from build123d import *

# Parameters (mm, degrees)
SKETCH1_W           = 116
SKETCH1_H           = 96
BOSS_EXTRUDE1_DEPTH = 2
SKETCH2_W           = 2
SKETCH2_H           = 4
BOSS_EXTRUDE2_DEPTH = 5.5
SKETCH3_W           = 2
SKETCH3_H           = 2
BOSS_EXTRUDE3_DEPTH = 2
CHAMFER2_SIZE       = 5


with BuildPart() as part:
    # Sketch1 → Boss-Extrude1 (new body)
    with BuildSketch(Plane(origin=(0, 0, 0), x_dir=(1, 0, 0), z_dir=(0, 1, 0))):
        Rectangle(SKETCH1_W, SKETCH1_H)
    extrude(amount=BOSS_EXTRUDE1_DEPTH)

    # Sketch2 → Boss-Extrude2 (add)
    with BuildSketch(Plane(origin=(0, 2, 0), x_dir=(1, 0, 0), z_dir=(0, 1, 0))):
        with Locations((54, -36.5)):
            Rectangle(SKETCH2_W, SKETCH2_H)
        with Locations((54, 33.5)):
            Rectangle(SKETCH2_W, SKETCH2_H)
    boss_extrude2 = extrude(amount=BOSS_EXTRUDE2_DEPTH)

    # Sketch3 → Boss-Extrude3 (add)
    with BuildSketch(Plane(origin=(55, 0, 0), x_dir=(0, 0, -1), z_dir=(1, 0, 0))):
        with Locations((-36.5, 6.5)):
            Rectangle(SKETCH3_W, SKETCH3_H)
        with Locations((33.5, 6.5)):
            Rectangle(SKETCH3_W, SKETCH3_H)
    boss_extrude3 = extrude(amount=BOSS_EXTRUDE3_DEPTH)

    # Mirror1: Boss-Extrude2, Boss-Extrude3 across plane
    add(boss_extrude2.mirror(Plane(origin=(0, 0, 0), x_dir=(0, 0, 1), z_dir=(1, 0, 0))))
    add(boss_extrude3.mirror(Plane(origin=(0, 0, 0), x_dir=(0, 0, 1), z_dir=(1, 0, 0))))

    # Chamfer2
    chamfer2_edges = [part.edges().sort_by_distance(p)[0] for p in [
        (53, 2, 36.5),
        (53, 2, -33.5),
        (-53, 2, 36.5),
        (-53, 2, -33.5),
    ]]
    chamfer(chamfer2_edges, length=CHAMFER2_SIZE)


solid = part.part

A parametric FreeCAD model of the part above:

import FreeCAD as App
import Part
import Sketcher
Q = App.Units.Quantity


def edges_at(feature, points):
    """Names of the edges that pass closest to the given points."""
    edges = feature.Shape.Edges
    near = lambda p: min(range(len(edges)), key=lambda i: edges[i].distToShape(Part.Vertex(*p))[0])
    return sorted({f"Edge{near(p) + 1}" for p in points})

doc = App.newDocument("Part")
params = doc.addObject("Spreadsheet::Sheet", "Params")
for row, (alias, value) in enumerate([
    ("sketch1_width", "116 mm"),
    ("sketch1_height", "96 mm"),
    ("pad1_length", "2 mm"),
    ("sketch2_width", "2 mm"),
    ("sketch2_height", "4 mm"),
    ("pad2_length", "5.5 mm"),
    ("sketch3_width", "2 mm"),
    ("pad3_length", "2 mm"),
    ("chamfer_size", "5 mm"),
], start=1):
    params.set(f"A{row}", alias)
    params.set(f"B{row}", "=" + value)
    params.setAlias(f"B{row}", alias)

body = doc.addObject("PartDesign::Body", "Body")

# Sketch on XZ plane
sketch1 = doc.addObject("Sketcher::SketchObject", "Sketch")
body.addObject(sketch1)
sketch1.AttachmentSupport = (doc.XZ_Plane, [""])
sketch1.MapMode = "FlatFace"
sketch1.addGeometry(Part.LineSegment(App.Vector(-58, -48, 0), App.Vector(-58, 48, 0)), False)
sketch1.addGeometry(Part.LineSegment(App.Vector(-58, 48, 0), App.Vector(58, 48, 0)), False)
sketch1.addGeometry(Part.LineSegment(App.Vector(58, 48, 0), App.Vector(58, -48, 0)), False)
sketch1.addGeometry(Part.LineSegment(App.Vector(58, -48, 0), App.Vector(-58, -48, 0)), False)
sketch1.addConstraint(Sketcher.Constraint("Coincident", 0, 2, 1, 1))
sketch1.addConstraint(Sketcher.Constraint("Coincident", 1, 2, 2, 1))
sketch1.addConstraint(Sketcher.Constraint("Coincident", 2, 2, 3, 1))
sketch1.addConstraint(Sketcher.Constraint("Coincident", 3, 2, 0, 1))
sketch1.addConstraint(Sketcher.Constraint("Vertical", 0))
sketch1.addConstraint(Sketcher.Constraint("Horizontal", 1))
sketch1.addConstraint(Sketcher.Constraint("Vertical", 2))
sketch1.addConstraint(Sketcher.Constraint("Horizontal", 3))
sketch1.addConstraint(Sketcher.Constraint("Symmetric", 0, 2, 2, 2, -1, 1))
sketch1.addConstraint(Sketcher.Constraint("DistanceX", 1, 1, 1, 2, Q("116 mm")))
sketch1.addConstraint(Sketcher.Constraint("DistanceY", 0, 1, 0, 2, Q("96 mm")))
sketch1.setExpression("Constraints[9]", "Params.sketch1_width")
sketch1.setExpression("Constraints[10]", "Params.sketch1_height")
pad1 = doc.addObject("PartDesign::Pad", "Pad")
body.addObject(pad1)
pad1.Profile = sketch1
pad1.setExpression("Length", "Params.pad1_length")
pad1.Reversed = True

# Sketch on XZ plane
sketch2 = doc.addObject("Sketcher::SketchObject", "Sketch001")
body.addObject(sketch2)
sketch2.AttachmentSupport = (doc.XZ_Plane, [""])
sketch2.MapMode = "FlatFace"
sketch2.AttachmentOffset = App.Placement(App.Vector(0, 0, -2), App.Rotation())
sketch2.addGeometry(Part.LineSegment(App.Vector(53, 34.5, 0), App.Vector(53, 38.5, 0)), False)
sketch2.addGeometry(Part.LineSegment(App.Vector(53, 38.5, 0), App.Vector(55, 38.5, 0)), False)
sketch2.addGeometry(Part.LineSegment(App.Vector(55, 38.5, 0), App.Vector(55, 34.5, 0)), False)
sketch2.addGeometry(Part.LineSegment(App.Vector(55, 34.5, 0), App.Vector(53, 34.5, 0)), False)
sketch2.addGeometry(Part.LineSegment(App.Vector(53, -35.5, 0), App.Vector(53, -31.5, 0)), False)
sketch2.addGeometry(Part.LineSegment(App.Vector(53, -31.5, 0), App.Vector(55, -31.5, 0)), False)
sketch2.addGeometry(Part.LineSegment(App.Vector(55, -31.5, 0), App.Vector(55, -35.5, 0)), False)
sketch2.addGeometry(Part.LineSegment(App.Vector(55, -35.5, 0), App.Vector(53, -35.5, 0)), False)
sketch2.addConstraint(Sketcher.Constraint("Coincident", 0, 2, 1, 1))
sketch2.addConstraint(Sketcher.Constraint("Coincident", 1, 2, 2, 1))
sketch2.addConstraint(Sketcher.Constraint("Coincident", 2, 2, 3, 1))
sketch2.addConstraint(Sketcher.Constraint("Coincident", 3, 2, 0, 1))
sketch2.addConstraint(Sketcher.Constraint("Coincident", 4, 2, 5, 1))
sketch2.addConstraint(Sketcher.Constraint("Coincident", 5, 2, 6, 1))
sketch2.addConstraint(Sketcher.Constraint("Coincident", 6, 2, 7, 1))
sketch2.addConstraint(Sketcher.Constraint("Coincident", 7, 2, 4, 1))
sketch2.addConstraint(Sketcher.Constraint("Vertical", 0))
sketch2.addConstraint(Sketcher.Constraint("Horizontal", 1))
sketch2.addConstraint(Sketcher.Constraint("Vertical", 2))
sketch2.addConstraint(Sketcher.Constraint("Horizontal", 3))
sketch2.addConstraint(Sketcher.Constraint("Vertical", 4))
sketch2.addConstraint(Sketcher.Constraint("Horizontal", 5))
sketch2.addConstraint(Sketcher.Constraint("Vertical", 6))
sketch2.addConstraint(Sketcher.Constraint("Horizontal", 7))
sketch2.addConstraint(Sketcher.Constraint("Vertical", 3, 2, 4, 2))
sketch2.addConstraint(Sketcher.Constraint("Vertical", 2, 2, 5, 2))
sketch2.addConstraint(Sketcher.Constraint("Equal", 2, 4))
sketch2.addConstraint(Sketcher.Constraint("DistanceX", 1, 1, 1, 2, Q("2 mm")))
sketch2.addConstraint(Sketcher.Constraint("DistanceY", 0, 1, 0, 2, Q("4 mm")))
sketch2.addConstraint(Sketcher.Constraint("DistanceX", -1, 1, 0, 2, Q("53 mm")))
sketch2.addConstraint(Sketcher.Constraint("DistanceY", 4, 2, 3, 2, Q("66 mm")))
sketch2.addConstraint(Sketcher.Constraint("DistanceY", -1, 1, 0, 2, Q("38.5 mm")))
sketch2.setExpression("Constraints[19]", "Params.sketch2_width")
sketch2.setExpression("Constraints[20]", "Params.sketch2_height")
pad2 = doc.addObject("PartDesign::Pad", "Pad001")
body.addObject(pad2)
pad2.Profile = sketch2
pad2.setExpression("Length", "Params.pad2_length")
pad2.Reversed = True

# Sketch on YZ plane
sketch3 = doc.addObject("Sketcher::SketchObject", "Sketch002")
body.addObject(sketch3)
sketch3.AttachmentSupport = (doc.YZ_Plane, [""])
sketch3.MapMode = "FlatFace"
sketch3.AttachmentOffset = App.Placement(App.Vector(0, 0, 55), App.Rotation())
sketch3.addGeometry(Part.LineSegment(App.Vector(7.5, 37.5, 0), App.Vector(5.5, 37.5, 0)), False)
sketch3.addGeometry(Part.LineSegment(App.Vector(5.5, 37.5, 0), App.Vector(5.5, 35.5, 0)), False)
sketch3.addGeometry(Part.LineSegment(App.Vector(5.5, 35.5, 0), App.Vector(7.5, 35.5, 0)), False)
sketch3.addGeometry(Part.LineSegment(App.Vector(7.5, 35.5, 0), App.Vector(7.5, 37.5, 0)), False)
sketch3.addGeometry(Part.LineSegment(App.Vector(7.5, -32.5, 0), App.Vector(5.5, -32.5, 0)), False)
sketch3.addGeometry(Part.LineSegment(App.Vector(5.5, -32.5, 0), App.Vector(5.5, -34.5, 0)), False)
sketch3.addGeometry(Part.LineSegment(App.Vector(5.5, -34.5, 0), App.Vector(7.5, -34.5, 0)), False)
sketch3.addGeometry(Part.LineSegment(App.Vector(7.5, -34.5, 0), App.Vector(7.5, -32.5, 0)), False)
sketch3.addConstraint(Sketcher.Constraint("Coincident", 0, 2, 1, 1))
sketch3.addConstraint(Sketcher.Constraint("Coincident", 1, 2, 2, 1))
sketch3.addConstraint(Sketcher.Constraint("Coincident", 2, 2, 3, 1))
sketch3.addConstraint(Sketcher.Constraint("Coincident", 3, 2, 0, 1))
sketch3.addConstraint(Sketcher.Constraint("Coincident", 4, 2, 5, 1))
sketch3.addConstraint(Sketcher.Constraint("Coincident", 5, 2, 6, 1))
sketch3.addConstraint(Sketcher.Constraint("Coincident", 6, 2, 7, 1))
sketch3.addConstraint(Sketcher.Constraint("Coincident", 7, 2, 4, 1))
sketch3.addConstraint(Sketcher.Constraint("Horizontal", 0))
sketch3.addConstraint(Sketcher.Constraint("Vertical", 1))
sketch3.addConstraint(Sketcher.Constraint("Horizontal", 2))
sketch3.addConstraint(Sketcher.Constraint("Vertical", 3))
sketch3.addConstraint(Sketcher.Constraint("Horizontal", 4))
sketch3.addConstraint(Sketcher.Constraint("Vertical", 5))
sketch3.addConstraint(Sketcher.Constraint("Horizontal", 6))
sketch3.addConstraint(Sketcher.Constraint("Vertical", 7))
sketch3.addConstraint(Sketcher.Constraint("Vertical", 1, 2, 4, 2))
sketch3.addConstraint(Sketcher.Constraint("Vertical", 3, 2, 6, 2))
sketch3.addConstraint(Sketcher.Constraint("Equal", 6, 1))
sketch3.addConstraint(Sketcher.Constraint("Equal", 3, 5))
sketch3.addConstraint(Sketcher.Constraint("DistanceX", 0, 2, 0, 1, Q("2 mm")))
sketch3.addConstraint(Sketcher.Constraint("DistanceY", 4, 2, 1, 2, Q("68 mm")))
sketch3.addConstraint(Sketcher.Constraint("DistanceX", -1, 1, 0, 2, Q("5.5 mm")))
sketch3.addConstraint(Sketcher.Constraint("DistanceY", -1, 1, 0, 2, Q("37.5 mm")))
sketch3.setExpression("Constraints[20]", "Params.sketch3_width")
pad3 = doc.addObject("PartDesign::Pad", "Pad002")
body.addObject(pad3)
pad3.Profile = sketch3
pad3.setExpression("Length", "Params.pad3_length")
doc.recompute()

mirrored = doc.addObject("PartDesign::Mirrored", "Mirrored")
body.addObject(mirrored)
mirrored.Originals = [pad2, pad3]
mirrored.MirrorPlane = (doc.YZ_Plane, [""])
body.Tip = mirrored
doc.recompute()

chamfer = doc.addObject("PartDesign::Chamfer", "Chamfer")
body.addObject(chamfer)
chamfer.Base = (mirrored, edges_at(mirrored, [
    (53, 2, 36.5),
    (53, 2, -33.5),
    (-53, 2, 36.5),
    (-53, 2, -33.5),
]))
chamfer.setExpression("Size", "Params.chamfer_size")

doc.recompute()
